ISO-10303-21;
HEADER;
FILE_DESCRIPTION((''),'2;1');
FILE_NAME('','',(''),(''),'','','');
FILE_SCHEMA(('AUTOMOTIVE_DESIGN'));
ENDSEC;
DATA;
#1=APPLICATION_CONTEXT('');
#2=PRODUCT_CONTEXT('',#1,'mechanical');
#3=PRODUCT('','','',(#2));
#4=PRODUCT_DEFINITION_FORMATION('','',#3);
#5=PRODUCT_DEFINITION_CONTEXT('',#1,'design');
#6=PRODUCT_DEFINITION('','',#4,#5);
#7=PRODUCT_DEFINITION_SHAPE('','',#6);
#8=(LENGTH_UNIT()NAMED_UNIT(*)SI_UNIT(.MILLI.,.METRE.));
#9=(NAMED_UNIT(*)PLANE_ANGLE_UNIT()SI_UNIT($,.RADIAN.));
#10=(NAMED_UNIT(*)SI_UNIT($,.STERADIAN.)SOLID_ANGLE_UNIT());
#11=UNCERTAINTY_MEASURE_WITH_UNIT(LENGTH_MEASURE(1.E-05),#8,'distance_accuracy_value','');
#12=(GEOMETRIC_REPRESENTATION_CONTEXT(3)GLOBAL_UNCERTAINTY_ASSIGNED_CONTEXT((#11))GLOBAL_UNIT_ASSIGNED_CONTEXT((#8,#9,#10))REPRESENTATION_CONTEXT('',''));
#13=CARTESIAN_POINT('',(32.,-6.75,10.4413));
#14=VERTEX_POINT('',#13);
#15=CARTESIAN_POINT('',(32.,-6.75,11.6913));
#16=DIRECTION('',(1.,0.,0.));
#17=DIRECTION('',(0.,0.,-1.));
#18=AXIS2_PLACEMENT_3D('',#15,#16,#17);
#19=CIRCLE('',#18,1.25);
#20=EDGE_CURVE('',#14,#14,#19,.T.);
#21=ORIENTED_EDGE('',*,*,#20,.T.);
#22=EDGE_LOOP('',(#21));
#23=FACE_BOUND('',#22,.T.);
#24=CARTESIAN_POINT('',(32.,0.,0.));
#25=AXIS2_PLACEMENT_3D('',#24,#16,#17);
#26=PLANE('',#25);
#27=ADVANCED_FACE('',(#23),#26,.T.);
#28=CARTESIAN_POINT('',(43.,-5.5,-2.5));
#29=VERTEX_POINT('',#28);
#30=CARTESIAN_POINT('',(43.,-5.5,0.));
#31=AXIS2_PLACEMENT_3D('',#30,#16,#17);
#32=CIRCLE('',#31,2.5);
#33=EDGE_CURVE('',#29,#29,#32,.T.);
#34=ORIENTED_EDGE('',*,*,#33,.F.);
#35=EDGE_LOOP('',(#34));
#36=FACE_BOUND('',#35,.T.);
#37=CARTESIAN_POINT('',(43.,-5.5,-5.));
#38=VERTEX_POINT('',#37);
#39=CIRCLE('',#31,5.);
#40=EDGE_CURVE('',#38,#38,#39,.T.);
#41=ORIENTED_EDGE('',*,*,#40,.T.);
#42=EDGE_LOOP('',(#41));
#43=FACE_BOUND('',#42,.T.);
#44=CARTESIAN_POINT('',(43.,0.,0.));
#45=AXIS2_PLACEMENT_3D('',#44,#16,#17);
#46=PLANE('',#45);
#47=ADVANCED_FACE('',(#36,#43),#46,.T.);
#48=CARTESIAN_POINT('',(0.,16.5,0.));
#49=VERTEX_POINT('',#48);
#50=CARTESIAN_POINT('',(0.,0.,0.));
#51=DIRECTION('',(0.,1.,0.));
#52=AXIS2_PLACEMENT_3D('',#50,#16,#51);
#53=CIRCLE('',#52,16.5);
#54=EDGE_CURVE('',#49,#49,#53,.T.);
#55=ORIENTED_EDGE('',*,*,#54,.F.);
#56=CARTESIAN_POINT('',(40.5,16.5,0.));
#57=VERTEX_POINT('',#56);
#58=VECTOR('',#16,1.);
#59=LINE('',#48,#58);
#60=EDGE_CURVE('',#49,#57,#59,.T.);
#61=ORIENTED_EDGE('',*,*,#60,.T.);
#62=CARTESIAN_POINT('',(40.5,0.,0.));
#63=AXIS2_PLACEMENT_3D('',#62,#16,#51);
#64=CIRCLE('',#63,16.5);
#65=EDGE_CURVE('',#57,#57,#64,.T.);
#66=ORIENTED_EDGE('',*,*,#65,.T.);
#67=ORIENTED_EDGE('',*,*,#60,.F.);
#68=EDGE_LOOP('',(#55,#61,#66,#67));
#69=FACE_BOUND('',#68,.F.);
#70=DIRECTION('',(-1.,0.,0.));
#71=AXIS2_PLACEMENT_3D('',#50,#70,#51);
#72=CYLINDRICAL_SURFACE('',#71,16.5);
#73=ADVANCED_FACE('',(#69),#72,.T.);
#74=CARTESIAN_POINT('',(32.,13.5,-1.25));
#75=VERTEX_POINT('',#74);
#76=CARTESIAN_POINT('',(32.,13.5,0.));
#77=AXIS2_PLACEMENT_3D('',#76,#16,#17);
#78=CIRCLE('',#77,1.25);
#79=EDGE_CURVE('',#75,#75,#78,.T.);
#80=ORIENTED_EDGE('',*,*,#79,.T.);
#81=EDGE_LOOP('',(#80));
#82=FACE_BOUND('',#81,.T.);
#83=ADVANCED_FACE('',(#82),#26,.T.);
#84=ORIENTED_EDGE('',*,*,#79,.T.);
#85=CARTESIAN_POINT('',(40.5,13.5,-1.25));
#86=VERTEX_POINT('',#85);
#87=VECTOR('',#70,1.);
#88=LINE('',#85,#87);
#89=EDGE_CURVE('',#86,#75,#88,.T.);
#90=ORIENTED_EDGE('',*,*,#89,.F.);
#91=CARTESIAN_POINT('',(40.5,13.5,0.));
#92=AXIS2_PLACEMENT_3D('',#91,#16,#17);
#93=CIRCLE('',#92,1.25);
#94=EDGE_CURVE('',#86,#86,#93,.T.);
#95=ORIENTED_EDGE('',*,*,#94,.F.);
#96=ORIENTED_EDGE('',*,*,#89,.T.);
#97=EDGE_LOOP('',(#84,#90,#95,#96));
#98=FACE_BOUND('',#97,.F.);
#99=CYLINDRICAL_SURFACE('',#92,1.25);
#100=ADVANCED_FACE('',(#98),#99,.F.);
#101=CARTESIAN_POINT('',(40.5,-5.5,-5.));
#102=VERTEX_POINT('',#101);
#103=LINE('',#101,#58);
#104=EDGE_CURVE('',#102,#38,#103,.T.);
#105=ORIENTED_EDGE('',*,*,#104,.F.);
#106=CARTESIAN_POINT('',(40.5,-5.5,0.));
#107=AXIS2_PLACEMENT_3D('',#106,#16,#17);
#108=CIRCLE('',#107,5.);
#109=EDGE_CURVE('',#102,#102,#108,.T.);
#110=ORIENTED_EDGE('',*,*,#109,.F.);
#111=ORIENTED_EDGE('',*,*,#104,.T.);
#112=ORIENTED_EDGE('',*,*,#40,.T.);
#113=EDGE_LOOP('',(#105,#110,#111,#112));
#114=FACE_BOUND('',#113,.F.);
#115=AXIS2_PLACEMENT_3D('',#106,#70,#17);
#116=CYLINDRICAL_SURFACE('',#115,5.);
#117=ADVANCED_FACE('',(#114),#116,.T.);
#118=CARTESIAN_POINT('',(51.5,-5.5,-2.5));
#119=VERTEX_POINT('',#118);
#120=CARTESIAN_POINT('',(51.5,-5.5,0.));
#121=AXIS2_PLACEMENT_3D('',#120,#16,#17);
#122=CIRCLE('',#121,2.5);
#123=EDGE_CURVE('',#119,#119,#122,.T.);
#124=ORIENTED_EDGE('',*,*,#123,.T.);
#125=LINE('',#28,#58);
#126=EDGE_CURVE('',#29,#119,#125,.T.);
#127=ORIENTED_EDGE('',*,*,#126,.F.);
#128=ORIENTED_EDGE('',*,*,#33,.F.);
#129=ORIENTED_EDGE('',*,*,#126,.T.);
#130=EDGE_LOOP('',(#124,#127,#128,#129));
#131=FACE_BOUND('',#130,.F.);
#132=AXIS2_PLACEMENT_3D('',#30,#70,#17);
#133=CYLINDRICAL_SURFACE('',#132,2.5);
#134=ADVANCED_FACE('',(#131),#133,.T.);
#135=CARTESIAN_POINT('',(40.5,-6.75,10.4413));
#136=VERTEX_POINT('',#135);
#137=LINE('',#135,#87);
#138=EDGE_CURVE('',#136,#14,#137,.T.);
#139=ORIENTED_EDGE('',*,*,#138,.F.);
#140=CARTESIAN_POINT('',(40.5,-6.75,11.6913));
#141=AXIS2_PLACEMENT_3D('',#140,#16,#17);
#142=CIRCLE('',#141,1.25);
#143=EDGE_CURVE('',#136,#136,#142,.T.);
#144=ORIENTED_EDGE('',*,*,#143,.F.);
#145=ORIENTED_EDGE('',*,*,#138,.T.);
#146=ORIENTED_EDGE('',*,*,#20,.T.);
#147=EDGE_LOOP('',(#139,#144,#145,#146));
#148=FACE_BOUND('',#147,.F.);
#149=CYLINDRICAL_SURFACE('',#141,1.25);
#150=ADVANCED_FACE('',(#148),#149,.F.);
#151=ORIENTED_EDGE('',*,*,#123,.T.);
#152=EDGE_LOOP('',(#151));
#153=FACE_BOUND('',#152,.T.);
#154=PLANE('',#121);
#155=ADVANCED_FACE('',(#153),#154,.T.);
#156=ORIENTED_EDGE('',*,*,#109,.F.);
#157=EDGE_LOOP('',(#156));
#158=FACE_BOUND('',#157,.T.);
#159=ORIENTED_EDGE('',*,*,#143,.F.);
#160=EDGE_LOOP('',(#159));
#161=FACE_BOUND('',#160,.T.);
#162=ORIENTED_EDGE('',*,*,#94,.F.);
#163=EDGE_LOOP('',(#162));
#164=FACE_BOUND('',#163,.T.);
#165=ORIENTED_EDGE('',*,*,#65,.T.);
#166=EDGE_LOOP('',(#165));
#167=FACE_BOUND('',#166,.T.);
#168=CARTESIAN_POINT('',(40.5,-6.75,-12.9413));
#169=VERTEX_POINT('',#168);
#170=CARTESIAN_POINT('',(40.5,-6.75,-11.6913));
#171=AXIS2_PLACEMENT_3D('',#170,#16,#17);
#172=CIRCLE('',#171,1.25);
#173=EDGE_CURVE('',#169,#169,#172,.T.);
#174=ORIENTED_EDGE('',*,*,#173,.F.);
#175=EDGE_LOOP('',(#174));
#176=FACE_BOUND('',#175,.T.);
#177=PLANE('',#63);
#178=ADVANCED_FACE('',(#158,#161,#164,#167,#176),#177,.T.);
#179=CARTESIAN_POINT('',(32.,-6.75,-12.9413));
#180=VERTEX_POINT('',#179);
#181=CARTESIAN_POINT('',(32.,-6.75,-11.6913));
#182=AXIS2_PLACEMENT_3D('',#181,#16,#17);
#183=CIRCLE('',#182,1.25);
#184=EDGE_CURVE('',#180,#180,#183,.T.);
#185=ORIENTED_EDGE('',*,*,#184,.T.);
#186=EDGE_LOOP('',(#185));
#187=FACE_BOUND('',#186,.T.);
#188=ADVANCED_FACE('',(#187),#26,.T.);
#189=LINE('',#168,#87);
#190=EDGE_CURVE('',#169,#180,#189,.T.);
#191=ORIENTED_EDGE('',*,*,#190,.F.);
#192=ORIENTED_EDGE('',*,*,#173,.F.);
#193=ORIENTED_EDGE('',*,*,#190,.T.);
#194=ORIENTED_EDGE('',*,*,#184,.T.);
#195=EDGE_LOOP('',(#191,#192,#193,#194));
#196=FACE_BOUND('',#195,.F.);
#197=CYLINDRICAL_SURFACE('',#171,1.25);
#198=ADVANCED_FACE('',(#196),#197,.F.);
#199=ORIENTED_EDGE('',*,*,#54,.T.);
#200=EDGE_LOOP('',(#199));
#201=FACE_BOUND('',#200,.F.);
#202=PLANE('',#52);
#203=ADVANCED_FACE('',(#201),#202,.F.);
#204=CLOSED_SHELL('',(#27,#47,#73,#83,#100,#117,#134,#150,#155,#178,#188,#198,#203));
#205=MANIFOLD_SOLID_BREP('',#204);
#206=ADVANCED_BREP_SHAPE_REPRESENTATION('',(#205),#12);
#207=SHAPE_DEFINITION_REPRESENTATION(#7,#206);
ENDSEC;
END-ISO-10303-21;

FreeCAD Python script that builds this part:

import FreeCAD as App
import Part
import Sketcher

V = App.Vector
Q = App.Units.Quantity

doc = App.newDocument("Part")
body = doc.addObject("PartDesign::Body", "Body")

# Sketch on YZ plane
sketch1 = body.newObject("Sketcher::SketchObject", "Sketch")
sketch1.AttachmentSupport = (doc.getObject("YZ_Plane"), [""])
sketch1.MapMode = "FlatFace"
sketch1.addGeometry(Part.Circle(V(0, 0, 0), V(0, 0, 1), 16), False)
sketch1.addConstraint([
    Sketcher.Constraint("Coincident", 0, 3, -1, 1),
    Sketcher.Constraint("Diameter", 0, Q("33 mm")),
])
pad1 = body.newObject("PartDesign::Pad", "Pad")
pad1.Profile = sketch1
pad1.Length = 40.5

# Sketch on YZ plane
sketch2 = body.newObject("Sketcher::SketchObject", "Sketch001")
sketch2.AttachmentSupport = (doc.getObject("YZ_Plane"), [""])
sketch2.MapMode = "FlatFace"
sketch2.AttachmentOffset = App.Placement(V(0, 0, 40.5), App.Rotation())
sketch2.addGeometry(Part.Circle(V(-6, 0, 0), V(0, 0, 1), 5), False)
sketch2.addConstraint([
    Sketcher.Constraint("PointOnObject", 0, 3, -1),
    Sketcher.Constraint("Diameter", 0, Q("10 mm")),
    Sketcher.Constraint("DistanceX", 0, 3, -1, 1, Q("5.5 mm")),
])
pad2 = body.newObject("PartDesign::Pad", "Pad001")
pad2.Profile = sketch2
pad2.Length = 2.5

# Sketch on YZ plane
sketch3 = body.newObject("Sketcher::SketchObject", "Sketch002")
sketch3.AttachmentSupport = (doc.getObject("YZ_Plane"), [""])
sketch3.MapMode = "FlatFace"
sketch3.AttachmentOffset = App.Placement(V(0, 0, 43), App.Rotation())
sketch3.addGeometry(Part.Circle(V(-5.5, 0, 0), V(0, 0, 1), 2.5), False)
sketch3.addConstraint([
    Sketcher.Constraint("PointOnObject", 0, 3, -1),
    Sketcher.Constraint("Diameter", 0, Q("5 mm")),
    Sketcher.Constraint("DistanceX", 0, 3, -1, 1, Q("5.5 mm")),
])
pad3 = body.newObject("PartDesign::Pad", "Pad002")
pad3.Profile = sketch3
pad3.Length = 8.5

# Sketch on YZ plane
sketch4 = body.newObject("Sketcher::SketchObject", "Sketch003")
sketch4.AttachmentSupport = (doc.getObject("YZ_Plane"), [""])
sketch4.MapMode = "FlatFace"
sketch4.AttachmentOffset = App.Placement(V(0, 0, 40.5), App.Rotation())
sketch4.addGeometry([
    Part.Circle(V(13.5, 0, 0), V(0, 0, 1), 1.2),
    Part.Circle(V(-6.8, 11.7, 0), V(0, 0, 1), 1.2),
    Part.Circle(V(-6.8, -11.7, 0), V(0, 0, 1), 1.2),
], False)
sketch4.addConstraint([
    Sketcher.Constraint("Equal", 0, 1),
    Sketcher.Constraint("Equal", 1, 2),
    Sketcher.Constraint("Symmetric", 1, 3, 2, 3, -1),
    Sketcher.Constraint("PointOnObject", 0, 3, -1),
    Sketcher.Constraint("Diameter", 0, Q("2.5 mm")),
    Sketcher.Constraint("DistanceX", -1, 1, 0, 3, Q("13.5 mm")),
    Sketcher.Constraint("DistanceX", 1, 3, -1, 1, Q("6.75 mm")),
    Sketcher.Constraint("DistanceY", -1, 1, 1, 3, Q("11.6913 mm")),
])
pocket1 = body.newObject("PartDesign::Pocket", "Pocket")
pocket1.Profile = sketch4
pocket1.Length = 8.5

doc.recompute()
